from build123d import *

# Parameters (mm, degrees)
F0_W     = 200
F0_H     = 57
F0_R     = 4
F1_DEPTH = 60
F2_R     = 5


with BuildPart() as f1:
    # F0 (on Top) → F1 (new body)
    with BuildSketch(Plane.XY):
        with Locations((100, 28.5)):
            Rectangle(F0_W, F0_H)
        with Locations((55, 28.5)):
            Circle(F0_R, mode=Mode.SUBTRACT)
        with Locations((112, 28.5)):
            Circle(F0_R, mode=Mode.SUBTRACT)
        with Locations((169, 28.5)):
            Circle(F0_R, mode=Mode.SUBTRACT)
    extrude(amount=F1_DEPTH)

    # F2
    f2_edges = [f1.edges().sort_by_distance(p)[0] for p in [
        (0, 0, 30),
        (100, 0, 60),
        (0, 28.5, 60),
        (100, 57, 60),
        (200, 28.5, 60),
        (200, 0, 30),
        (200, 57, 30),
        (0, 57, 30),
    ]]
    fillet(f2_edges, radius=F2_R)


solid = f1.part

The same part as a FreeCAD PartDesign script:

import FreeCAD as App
import Part
import Sketcher
from FreeCAD import Vector


def edges_at(feature, points):
    """Names of the edges that pass closest to the given points."""
    edges = feature.Shape.Edges
    near = lambda p: min(range(len(edges)), key=lambda i: edges[i].distToShape(Part.Vertex(*p))[0])
    return sorted({f"Edge{near(p) + 1}" for p in points})

doc = App.newDocument("Part")
params = doc.addObject("Spreadsheet::Sheet", "Params")
for row, (alias, value) in enumerate([
    ("sketch1_diameter", "8 mm"),
    ("sketch1_width", "200 mm"),
    ("sketch1_height", "57 mm"),
    ("pad1_length", "60 mm"),
    ("fillet_radius", "5 mm"),
], start=1):
    params.set(f"A{row}", alias)
    params.set(f"B{row}", "=" + value)
    params.setAlias(f"B{row}", alias)

body = doc.addObject("PartDesign::Body", "Body")

sketch1 = doc.addObject("Sketcher::SketchObject", "Sketch")
body.addObject(sketch1)
sketch1.AttachmentSupport = (doc.XY_Plane, [""])
sketch1.MapMode = "FlatFace"
sketch1.addGeometry([
    Part.LineSegment(Vector(0, 57, 0), Vector(0, 0, 0)),
    Part.LineSegment(Vector(0, 0, 0), Vector(200, 0, 0)),
    Part.LineSegment(Vector(200, 0, 0), Vector(200, 57, 0)),
    Part.LineSegment(Vector(200, 57, 0), Vector(0, 57, 0)),
    Part.Circle(Vector(55, 28.5, 0), Vector(0, 0, 1), 4),
    Part.Circle(Vector(112, 28.5, 0), Vector(0, 0, 1), 4),
    Part.Circle(Vector(169, 28.5, 0), Vector(0, 0, 1), 4),
], False)
sketch1.addConstraint([
    Sketcher.Constraint("Coincident", 0, 2, 1, 1),
    Sketcher.Constraint("Coincident", 1, 2, 2, 1),
    Sketcher.Constraint("Coincident", 2, 2, 3, 1),
    Sketcher.Constraint("Coincident", 3, 2, 0, 1),
    Sketcher.Constraint("Vertical", 0),
    Sketcher.Constraint("Horizontal", 1),
    Sketcher.Constraint("Vertical", 2),
    Sketcher.Constraint("Horizontal", 3),
    Sketcher.Constraint("Coincident", 0, 2, -1, 1),
    Sketcher.Constraint("Equal", 4, 5),
    Sketcher.Constraint("Equal", 5, 6),
    Sketcher.Constraint("Horizontal", 4, 3, 5, 3),
    Sketcher.Constraint("Horizontal", 5, 3, 6, 3),
    Sketcher.Constraint("Diameter", 4, 8.0),
    Sketcher.Constraint("DistanceX", 1, 1, 1, 2, 200.0),
    Sketcher.Constraint("DistanceY", 0, 2, 0, 1, 57.0),
    Sketcher.Constraint("DistanceX", -1, 1, 4, 3, 55.0),
    Sketcher.Constraint("DistanceX", -1, 1, 5, 3, 112.0),
    Sketcher.Constraint("DistanceX", -1, 1, 6, 3, 169.0),
    Sketcher.Constraint("DistanceY", -1, 1, 4, 3, 28.5),
])
sketch1.setExpression("Constraints[13]", "Params.sketch1_diameter")
sketch1.setExpression("Constraints[14]", "Params.sketch1_width")
sketch1.setExpression("Constraints[15]", "Params.sketch1_height")
pad1 = doc.addObject("PartDesign::Pad", "Pad")
body.addObject(pad1)
pad1.Profile = sketch1
pad1.setExpression("Length", "Params.pad1_length")
doc.recompute()

fillet = doc.addObject("PartDesign::Fillet", "Fillet")
body.addObject(fillet)
fillet.Base = (pad1, edges_at(pad1, [
    (0, 0, 30),
    (100, 0, 60),
    (0, 28.5, 60),
    (100, 57, 60),
    (200, 28.5, 60),
    (200, 0, 30),
    (200, 57, 30),
    (0, 57, 30),
]))
fillet.setExpression("Radius", "Params.fillet_radius")

doc.recompute()
